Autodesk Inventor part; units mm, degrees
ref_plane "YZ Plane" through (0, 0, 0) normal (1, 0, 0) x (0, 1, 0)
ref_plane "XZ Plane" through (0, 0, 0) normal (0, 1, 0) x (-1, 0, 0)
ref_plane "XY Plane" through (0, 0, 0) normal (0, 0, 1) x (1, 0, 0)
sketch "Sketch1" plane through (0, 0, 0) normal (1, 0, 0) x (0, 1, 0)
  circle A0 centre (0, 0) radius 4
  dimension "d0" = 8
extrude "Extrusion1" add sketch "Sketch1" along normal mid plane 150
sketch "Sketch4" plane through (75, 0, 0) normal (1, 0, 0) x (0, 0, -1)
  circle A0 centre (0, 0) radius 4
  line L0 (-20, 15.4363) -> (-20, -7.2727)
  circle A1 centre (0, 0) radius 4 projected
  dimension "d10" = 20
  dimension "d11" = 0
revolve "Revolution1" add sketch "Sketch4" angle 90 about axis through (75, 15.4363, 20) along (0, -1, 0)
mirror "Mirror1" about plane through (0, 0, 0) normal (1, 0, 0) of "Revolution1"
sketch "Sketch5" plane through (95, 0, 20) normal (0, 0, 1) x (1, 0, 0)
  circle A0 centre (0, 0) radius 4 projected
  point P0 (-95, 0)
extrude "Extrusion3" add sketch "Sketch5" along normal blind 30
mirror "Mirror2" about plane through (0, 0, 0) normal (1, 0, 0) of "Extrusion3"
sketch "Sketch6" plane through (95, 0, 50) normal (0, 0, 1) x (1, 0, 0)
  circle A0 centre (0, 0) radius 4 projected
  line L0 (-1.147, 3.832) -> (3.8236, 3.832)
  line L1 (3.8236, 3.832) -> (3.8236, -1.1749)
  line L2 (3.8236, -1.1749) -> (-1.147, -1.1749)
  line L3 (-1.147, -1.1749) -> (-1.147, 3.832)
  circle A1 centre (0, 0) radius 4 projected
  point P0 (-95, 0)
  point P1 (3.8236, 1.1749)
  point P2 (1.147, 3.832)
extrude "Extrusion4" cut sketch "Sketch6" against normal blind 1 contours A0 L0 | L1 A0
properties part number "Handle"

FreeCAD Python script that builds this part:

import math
import FreeCAD as App
import Part
import Sketcher
Q = App.Units.Quantity

doc = App.newDocument("Part")
params = doc.addObject("Spreadsheet::Sheet", "Params")
for row, (alias, value) in enumerate([
    ("sketch1_diameter", "8 mm"),
    ("pad1_length", "150 mm"),
    ("sketch2_diameter", "8 mm"),
    ("sketch2_width", "10 mm"),
    ("revolution_angle", "90 deg"),
    ("sketch3_diameter", "8 mm"),
    ("pad2_length", "30 mm"),
    ("sketch4_radius", "4 mm"),
    ("pocket1_length", "1 mm"),
], start=1):
    params.set(f"A{row}", alias)
    params.set(f"B{row}", "=" + value)
    params.setAlias(f"B{row}", alias)

body = doc.addObject("PartDesign::Body", "Body")

# Sketch on YZ plane
sketch1 = body.newObject("Sketcher::SketchObject", "Sketch")
sketch1.AttachmentSupport = (doc.getObject("YZ_Plane"), [""])
sketch1.MapMode = "FlatFace"
sketch1.addGeometry(Part.Circle(App.Vector(0, 0, 0), App.Vector(0, 0, 1), 4), False)
sketch1.addConstraint([
    Sketcher.Constraint("Coincident", 0, 3, -1, 1),
    Sketcher.Constraint("Diameter", 0, Q("8 mm")),
])
sketch1.setExpression("Constraints[1]", "Params.sketch1_diameter")
pad1 = body.newObject("PartDesign::Pad", "Pad")
pad1.Profile = sketch1
pad1.setExpression("Length", "Params.pad1_length")
pad1.Midplane = True

# Sketch on YZ plane
sketch2 = body.newObject("Sketcher::SketchObject", "Sketch001")
sketch2.AttachmentSupport = (doc.getObject("YZ_Plane"), [""])
sketch2.MapMode = "FlatFace"
sketch2.AttachmentOffset = App.Placement(App.Vector(0, 0, 75), App.Rotation())
sketch2.addGeometry(Part.Circle(App.Vector(0, 0, 0), App.Vector(0, 0, 1), 4), False)
sketch2.addGeometry(Part.LineSegment(App.Vector(0, 20, 0), App.Vector(-10, 20, 0)), True)  # axis
sketch2.addConstraint([
    Sketcher.Constraint("Horizontal", 1),
    Sketcher.Constraint("Coincident", 0, 3, -1, 1),
    Sketcher.Constraint("PointOnObject", 1, 1, -2),
    Sketcher.Constraint("Diameter", 0, Q("8 mm")),
    Sketcher.Constraint("DistanceY", -1, 1, 1, 1, Q("20 mm")),
    Sketcher.Constraint("DistanceX", 1, 2, 1, 1, Q("10 mm")),
])
sketch2.setExpression("Constraints[3]", "Params.sketch2_diameter")
sketch2.setExpression("Constraints[5]", "Params.sketch2_width")
revolution = body.newObject("PartDesign::Revolution", "Revolution")
revolution.Profile = sketch2
revolution.ReferenceAxis = (sketch2, ["Axis0"])
revolution.setExpression("Angle", "Params.revolution_angle")
doc.recompute()

mirrored = body.newObject("PartDesign::Mirrored", "Mirrored")
mirrored.Originals = [revolution]
mirrored.MirrorPlane = (doc.getObject("YZ_Plane"), [""])
body.Tip = mirrored

# Sketch on XY plane
sketch3 = body.newObject("Sketcher::SketchObject", "Sketch002")
sketch3.AttachmentSupport = (doc.getObject("XY_Plane"), [""])
sketch3.MapMode = "FlatFace"
sketch3.AttachmentOffset = App.Placement(App.Vector(0, 0, 20), App.Rotation())
sketch3.addGeometry(Part.Circle(App.Vector(95, 0, 0), App.Vector(0, 0, 1), 4), False)
sketch3.addConstraint([
    Sketcher.Constraint("PointOnObject", 0, 3, -1),
    Sketcher.Constraint("Diameter", 0, Q("8 mm")),
    Sketcher.Constraint("DistanceX", -1, 1, 0, 3, Q("95 mm")),
])
sketch3.setExpression("Constraints[1]", "Params.sketch3_diameter")
pad2 = body.newObject("PartDesign::Pad", "Pad001")
pad2.Profile = sketch3
pad2.setExpression("Length", "Params.pad2_length")
doc.recompute()

mirrored2 = body.newObject("PartDesign::Mirrored", "Mirrored001")
mirrored2.Originals = [pad2]
mirrored2.MirrorPlane = (doc.getObject("YZ_Plane"), [""])
body.Tip = mirrored2

# Sketch on XY plane
sketch4 = body.newObject("Sketcher::SketchObject", "Sketch003")
sketch4.AttachmentSupport = (doc.getObject("XY_Plane"), [""])
sketch4.MapMode = "FlatFace"
sketch4.AttachmentOffset = App.Placement(App.Vector(0, 0, 50), App.Rotation())
sketch4.addGeometry([
    Part.ArcOfCircle(Part.Circle(App.Vector(95, 0, 0), App.Vector(0, 0, 1), 4), math.radians(73), math.radians(107)),
    Part.LineSegment(App.Vector(96.1, 3.8, 0), App.Vector(93.9, 3.8, 0)),
    Part.LineSegment(App.Vector(98.8, 1.2, 0), App.Vector(98.8, -1.2, 0)),
    Part.ArcOfCircle(Part.Circle(App.Vector(95, 0, 0), App.Vector(0, 0, 1), 4), math.radians(-17), math.radians(17)),
], False)
sketch4.addConstraint([
    Sketcher.Constraint("Coincident", 0, 1, 1, 1),
    Sketcher.Constraint("Coincident", 1, 2, 0, 2),
    Sketcher.Constraint("Coincident", 2, 1, 3, 2),
    Sketcher.Constraint("Coincident", 3, 1, 2, 2),
    Sketcher.Constraint("Horizontal", 1),
    Sketcher.Constraint("Vertical", 2),
    Sketcher.Constraint("Coincident", 3, 3, 0, 3),
    Sketcher.Constraint("Equal", 0, 3),
    Sketcher.Constraint("PointOnObject", 0, 3, -1),
    Sketcher.Constraint("Radius", 0, Q("4 mm")),
    Sketcher.Constraint("DistanceX", -1, 1, 0, 3, Q("95 mm")),
    Sketcher.Constraint("DistanceX", 1, 2, 1, 1, Q("2.294 mm")),
    Sketcher.Constraint("DistanceY", 2, 2, 2, 1, Q("2.3497 mm")),
])
sketch4.setExpression("Constraints[9]", "Params.sketch4_radius")
pocket1 = body.newObject("PartDesign::Pocket", "Pocket")
pocket1.Profile = sketch4
pocket1.setExpression("Length", "Params.pocket1_length")

doc.recompute()
